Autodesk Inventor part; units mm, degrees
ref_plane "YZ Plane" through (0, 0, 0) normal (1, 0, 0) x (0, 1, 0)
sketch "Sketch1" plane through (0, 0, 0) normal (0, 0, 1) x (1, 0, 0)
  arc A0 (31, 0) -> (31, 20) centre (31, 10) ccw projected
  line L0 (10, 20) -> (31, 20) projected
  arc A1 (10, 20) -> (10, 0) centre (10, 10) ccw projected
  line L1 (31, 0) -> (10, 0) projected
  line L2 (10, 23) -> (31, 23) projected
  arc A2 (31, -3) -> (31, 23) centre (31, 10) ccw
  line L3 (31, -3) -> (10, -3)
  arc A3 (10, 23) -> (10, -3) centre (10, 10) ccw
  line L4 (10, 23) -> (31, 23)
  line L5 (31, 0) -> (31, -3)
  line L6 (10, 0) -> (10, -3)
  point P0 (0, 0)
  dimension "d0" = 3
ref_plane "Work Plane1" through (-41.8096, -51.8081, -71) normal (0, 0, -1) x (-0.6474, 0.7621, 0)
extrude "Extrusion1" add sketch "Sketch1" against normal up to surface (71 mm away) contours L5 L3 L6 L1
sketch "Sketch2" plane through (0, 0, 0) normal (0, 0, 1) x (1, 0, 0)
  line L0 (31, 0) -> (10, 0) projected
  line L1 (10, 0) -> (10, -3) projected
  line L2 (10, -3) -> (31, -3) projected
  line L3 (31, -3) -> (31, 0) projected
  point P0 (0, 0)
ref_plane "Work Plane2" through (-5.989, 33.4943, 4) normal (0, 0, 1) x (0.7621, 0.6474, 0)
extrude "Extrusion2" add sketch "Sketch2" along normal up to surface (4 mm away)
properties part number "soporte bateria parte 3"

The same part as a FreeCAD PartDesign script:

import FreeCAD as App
import Part
import Sketcher
Q = App.Units.Quantity

doc = App.newDocument("Part")
body = doc.addObject("PartDesign::Body", "Body")

sketch1 = doc.addObject("Sketcher::SketchObject", "Sketch")
body.addObject(sketch1)
sketch1.AttachmentSupport = (doc.XY_Plane, [""])
sketch1.MapMode = "FlatFace"
sketch1.addGeometry([
    Part.LineSegment(App.Vector(31, -3, 0), App.Vector(31, 0, 0)),
    Part.LineSegment(App.Vector(31, 0, 0), App.Vector(10, 0, 0)),
    Part.LineSegment(App.Vector(10, 0, 0), App.Vector(10, -3, 0)),
    Part.LineSegment(App.Vector(10, -3, 0), App.Vector(31, -3, 0)),
], False)
sketch1.addConstraint([
    Sketcher.Constraint("Coincident", 0, 2, 1, 1),
    Sketcher.Constraint("Coincident", 1, 2, 2, 1),
    Sketcher.Constraint("Coincident", 2, 2, 3, 1),
    Sketcher.Constraint("Coincident", 3, 2, 0, 1),
    Sketcher.Constraint("Vertical", 0),
    Sketcher.Constraint("Horizontal", 1),
    Sketcher.Constraint("Vertical", 2),
    Sketcher.Constraint("Horizontal", 3),
    Sketcher.Constraint("PointOnObject", 0, 2, -1),
    Sketcher.Constraint("DistanceY", 0, 1, 0, 2, Q("3 mm")),
    Sketcher.Constraint("DistanceX", 1, 2, 1, 1, Q("21 mm")),
    Sketcher.Constraint("DistanceX", -1, 1, 0, 2, Q("31 mm")),
])
pad1 = doc.addObject("PartDesign::Pad", "Pad")
body.addObject(pad1)
pad1.Profile = sketch1
pad1.Length = 71
pad1.Reversed = True

sketch2 = doc.addObject("Sketcher::SketchObject", "Sketch001")
body.addObject(sketch2)
sketch2.AttachmentSupport = (doc.XY_Plane, [""])
sketch2.MapMode = "FlatFace"
sketch2.addGeometry([
    Part.LineSegment(App.Vector(31, -3, 0), App.Vector(31, 0, 0)),
    Part.LineSegment(App.Vector(31, 0, 0), App.Vector(10, 0, 0)),
    Part.LineSegment(App.Vector(10, 0, 0), App.Vector(10, -3, 0)),
    Part.LineSegment(App.Vector(10, -3, 0), App.Vector(31, -3, 0)),
], False)
sketch2.addConstraint([
    Sketcher.Constraint("Coincident", 0, 2, 1, 1),
    Sketcher.Constraint("Coincident", 1, 2, 2, 1),
    Sketcher.Constraint("Coincident", 2, 2, 3, 1),
    Sketcher.Constraint("Coincident", 3, 2, 0, 1),
    Sketcher.Constraint("Vertical", 0),
    Sketcher.Constraint("Horizontal", 1),
    Sketcher.Constraint("Vertical", 2),
    Sketcher.Constraint("Horizontal", 3),
    Sketcher.Constraint("PointOnObject", 0, 2, -1),
    Sketcher.Constraint("DistanceX", 1, 2, 1, 1, Q("21 mm")),
    Sketcher.Constraint("DistanceY", 0, 1, 0, 2, Q("3 mm")),
    Sketcher.Constraint("DistanceX", -1, 1, 0, 2, Q("31 mm")),
])
pad2 = doc.addObject("PartDesign::Pad", "Pad001")
body.addObject(pad2)
pad2.Profile = sketch2
pad2.Length = 4

doc.recompute()
